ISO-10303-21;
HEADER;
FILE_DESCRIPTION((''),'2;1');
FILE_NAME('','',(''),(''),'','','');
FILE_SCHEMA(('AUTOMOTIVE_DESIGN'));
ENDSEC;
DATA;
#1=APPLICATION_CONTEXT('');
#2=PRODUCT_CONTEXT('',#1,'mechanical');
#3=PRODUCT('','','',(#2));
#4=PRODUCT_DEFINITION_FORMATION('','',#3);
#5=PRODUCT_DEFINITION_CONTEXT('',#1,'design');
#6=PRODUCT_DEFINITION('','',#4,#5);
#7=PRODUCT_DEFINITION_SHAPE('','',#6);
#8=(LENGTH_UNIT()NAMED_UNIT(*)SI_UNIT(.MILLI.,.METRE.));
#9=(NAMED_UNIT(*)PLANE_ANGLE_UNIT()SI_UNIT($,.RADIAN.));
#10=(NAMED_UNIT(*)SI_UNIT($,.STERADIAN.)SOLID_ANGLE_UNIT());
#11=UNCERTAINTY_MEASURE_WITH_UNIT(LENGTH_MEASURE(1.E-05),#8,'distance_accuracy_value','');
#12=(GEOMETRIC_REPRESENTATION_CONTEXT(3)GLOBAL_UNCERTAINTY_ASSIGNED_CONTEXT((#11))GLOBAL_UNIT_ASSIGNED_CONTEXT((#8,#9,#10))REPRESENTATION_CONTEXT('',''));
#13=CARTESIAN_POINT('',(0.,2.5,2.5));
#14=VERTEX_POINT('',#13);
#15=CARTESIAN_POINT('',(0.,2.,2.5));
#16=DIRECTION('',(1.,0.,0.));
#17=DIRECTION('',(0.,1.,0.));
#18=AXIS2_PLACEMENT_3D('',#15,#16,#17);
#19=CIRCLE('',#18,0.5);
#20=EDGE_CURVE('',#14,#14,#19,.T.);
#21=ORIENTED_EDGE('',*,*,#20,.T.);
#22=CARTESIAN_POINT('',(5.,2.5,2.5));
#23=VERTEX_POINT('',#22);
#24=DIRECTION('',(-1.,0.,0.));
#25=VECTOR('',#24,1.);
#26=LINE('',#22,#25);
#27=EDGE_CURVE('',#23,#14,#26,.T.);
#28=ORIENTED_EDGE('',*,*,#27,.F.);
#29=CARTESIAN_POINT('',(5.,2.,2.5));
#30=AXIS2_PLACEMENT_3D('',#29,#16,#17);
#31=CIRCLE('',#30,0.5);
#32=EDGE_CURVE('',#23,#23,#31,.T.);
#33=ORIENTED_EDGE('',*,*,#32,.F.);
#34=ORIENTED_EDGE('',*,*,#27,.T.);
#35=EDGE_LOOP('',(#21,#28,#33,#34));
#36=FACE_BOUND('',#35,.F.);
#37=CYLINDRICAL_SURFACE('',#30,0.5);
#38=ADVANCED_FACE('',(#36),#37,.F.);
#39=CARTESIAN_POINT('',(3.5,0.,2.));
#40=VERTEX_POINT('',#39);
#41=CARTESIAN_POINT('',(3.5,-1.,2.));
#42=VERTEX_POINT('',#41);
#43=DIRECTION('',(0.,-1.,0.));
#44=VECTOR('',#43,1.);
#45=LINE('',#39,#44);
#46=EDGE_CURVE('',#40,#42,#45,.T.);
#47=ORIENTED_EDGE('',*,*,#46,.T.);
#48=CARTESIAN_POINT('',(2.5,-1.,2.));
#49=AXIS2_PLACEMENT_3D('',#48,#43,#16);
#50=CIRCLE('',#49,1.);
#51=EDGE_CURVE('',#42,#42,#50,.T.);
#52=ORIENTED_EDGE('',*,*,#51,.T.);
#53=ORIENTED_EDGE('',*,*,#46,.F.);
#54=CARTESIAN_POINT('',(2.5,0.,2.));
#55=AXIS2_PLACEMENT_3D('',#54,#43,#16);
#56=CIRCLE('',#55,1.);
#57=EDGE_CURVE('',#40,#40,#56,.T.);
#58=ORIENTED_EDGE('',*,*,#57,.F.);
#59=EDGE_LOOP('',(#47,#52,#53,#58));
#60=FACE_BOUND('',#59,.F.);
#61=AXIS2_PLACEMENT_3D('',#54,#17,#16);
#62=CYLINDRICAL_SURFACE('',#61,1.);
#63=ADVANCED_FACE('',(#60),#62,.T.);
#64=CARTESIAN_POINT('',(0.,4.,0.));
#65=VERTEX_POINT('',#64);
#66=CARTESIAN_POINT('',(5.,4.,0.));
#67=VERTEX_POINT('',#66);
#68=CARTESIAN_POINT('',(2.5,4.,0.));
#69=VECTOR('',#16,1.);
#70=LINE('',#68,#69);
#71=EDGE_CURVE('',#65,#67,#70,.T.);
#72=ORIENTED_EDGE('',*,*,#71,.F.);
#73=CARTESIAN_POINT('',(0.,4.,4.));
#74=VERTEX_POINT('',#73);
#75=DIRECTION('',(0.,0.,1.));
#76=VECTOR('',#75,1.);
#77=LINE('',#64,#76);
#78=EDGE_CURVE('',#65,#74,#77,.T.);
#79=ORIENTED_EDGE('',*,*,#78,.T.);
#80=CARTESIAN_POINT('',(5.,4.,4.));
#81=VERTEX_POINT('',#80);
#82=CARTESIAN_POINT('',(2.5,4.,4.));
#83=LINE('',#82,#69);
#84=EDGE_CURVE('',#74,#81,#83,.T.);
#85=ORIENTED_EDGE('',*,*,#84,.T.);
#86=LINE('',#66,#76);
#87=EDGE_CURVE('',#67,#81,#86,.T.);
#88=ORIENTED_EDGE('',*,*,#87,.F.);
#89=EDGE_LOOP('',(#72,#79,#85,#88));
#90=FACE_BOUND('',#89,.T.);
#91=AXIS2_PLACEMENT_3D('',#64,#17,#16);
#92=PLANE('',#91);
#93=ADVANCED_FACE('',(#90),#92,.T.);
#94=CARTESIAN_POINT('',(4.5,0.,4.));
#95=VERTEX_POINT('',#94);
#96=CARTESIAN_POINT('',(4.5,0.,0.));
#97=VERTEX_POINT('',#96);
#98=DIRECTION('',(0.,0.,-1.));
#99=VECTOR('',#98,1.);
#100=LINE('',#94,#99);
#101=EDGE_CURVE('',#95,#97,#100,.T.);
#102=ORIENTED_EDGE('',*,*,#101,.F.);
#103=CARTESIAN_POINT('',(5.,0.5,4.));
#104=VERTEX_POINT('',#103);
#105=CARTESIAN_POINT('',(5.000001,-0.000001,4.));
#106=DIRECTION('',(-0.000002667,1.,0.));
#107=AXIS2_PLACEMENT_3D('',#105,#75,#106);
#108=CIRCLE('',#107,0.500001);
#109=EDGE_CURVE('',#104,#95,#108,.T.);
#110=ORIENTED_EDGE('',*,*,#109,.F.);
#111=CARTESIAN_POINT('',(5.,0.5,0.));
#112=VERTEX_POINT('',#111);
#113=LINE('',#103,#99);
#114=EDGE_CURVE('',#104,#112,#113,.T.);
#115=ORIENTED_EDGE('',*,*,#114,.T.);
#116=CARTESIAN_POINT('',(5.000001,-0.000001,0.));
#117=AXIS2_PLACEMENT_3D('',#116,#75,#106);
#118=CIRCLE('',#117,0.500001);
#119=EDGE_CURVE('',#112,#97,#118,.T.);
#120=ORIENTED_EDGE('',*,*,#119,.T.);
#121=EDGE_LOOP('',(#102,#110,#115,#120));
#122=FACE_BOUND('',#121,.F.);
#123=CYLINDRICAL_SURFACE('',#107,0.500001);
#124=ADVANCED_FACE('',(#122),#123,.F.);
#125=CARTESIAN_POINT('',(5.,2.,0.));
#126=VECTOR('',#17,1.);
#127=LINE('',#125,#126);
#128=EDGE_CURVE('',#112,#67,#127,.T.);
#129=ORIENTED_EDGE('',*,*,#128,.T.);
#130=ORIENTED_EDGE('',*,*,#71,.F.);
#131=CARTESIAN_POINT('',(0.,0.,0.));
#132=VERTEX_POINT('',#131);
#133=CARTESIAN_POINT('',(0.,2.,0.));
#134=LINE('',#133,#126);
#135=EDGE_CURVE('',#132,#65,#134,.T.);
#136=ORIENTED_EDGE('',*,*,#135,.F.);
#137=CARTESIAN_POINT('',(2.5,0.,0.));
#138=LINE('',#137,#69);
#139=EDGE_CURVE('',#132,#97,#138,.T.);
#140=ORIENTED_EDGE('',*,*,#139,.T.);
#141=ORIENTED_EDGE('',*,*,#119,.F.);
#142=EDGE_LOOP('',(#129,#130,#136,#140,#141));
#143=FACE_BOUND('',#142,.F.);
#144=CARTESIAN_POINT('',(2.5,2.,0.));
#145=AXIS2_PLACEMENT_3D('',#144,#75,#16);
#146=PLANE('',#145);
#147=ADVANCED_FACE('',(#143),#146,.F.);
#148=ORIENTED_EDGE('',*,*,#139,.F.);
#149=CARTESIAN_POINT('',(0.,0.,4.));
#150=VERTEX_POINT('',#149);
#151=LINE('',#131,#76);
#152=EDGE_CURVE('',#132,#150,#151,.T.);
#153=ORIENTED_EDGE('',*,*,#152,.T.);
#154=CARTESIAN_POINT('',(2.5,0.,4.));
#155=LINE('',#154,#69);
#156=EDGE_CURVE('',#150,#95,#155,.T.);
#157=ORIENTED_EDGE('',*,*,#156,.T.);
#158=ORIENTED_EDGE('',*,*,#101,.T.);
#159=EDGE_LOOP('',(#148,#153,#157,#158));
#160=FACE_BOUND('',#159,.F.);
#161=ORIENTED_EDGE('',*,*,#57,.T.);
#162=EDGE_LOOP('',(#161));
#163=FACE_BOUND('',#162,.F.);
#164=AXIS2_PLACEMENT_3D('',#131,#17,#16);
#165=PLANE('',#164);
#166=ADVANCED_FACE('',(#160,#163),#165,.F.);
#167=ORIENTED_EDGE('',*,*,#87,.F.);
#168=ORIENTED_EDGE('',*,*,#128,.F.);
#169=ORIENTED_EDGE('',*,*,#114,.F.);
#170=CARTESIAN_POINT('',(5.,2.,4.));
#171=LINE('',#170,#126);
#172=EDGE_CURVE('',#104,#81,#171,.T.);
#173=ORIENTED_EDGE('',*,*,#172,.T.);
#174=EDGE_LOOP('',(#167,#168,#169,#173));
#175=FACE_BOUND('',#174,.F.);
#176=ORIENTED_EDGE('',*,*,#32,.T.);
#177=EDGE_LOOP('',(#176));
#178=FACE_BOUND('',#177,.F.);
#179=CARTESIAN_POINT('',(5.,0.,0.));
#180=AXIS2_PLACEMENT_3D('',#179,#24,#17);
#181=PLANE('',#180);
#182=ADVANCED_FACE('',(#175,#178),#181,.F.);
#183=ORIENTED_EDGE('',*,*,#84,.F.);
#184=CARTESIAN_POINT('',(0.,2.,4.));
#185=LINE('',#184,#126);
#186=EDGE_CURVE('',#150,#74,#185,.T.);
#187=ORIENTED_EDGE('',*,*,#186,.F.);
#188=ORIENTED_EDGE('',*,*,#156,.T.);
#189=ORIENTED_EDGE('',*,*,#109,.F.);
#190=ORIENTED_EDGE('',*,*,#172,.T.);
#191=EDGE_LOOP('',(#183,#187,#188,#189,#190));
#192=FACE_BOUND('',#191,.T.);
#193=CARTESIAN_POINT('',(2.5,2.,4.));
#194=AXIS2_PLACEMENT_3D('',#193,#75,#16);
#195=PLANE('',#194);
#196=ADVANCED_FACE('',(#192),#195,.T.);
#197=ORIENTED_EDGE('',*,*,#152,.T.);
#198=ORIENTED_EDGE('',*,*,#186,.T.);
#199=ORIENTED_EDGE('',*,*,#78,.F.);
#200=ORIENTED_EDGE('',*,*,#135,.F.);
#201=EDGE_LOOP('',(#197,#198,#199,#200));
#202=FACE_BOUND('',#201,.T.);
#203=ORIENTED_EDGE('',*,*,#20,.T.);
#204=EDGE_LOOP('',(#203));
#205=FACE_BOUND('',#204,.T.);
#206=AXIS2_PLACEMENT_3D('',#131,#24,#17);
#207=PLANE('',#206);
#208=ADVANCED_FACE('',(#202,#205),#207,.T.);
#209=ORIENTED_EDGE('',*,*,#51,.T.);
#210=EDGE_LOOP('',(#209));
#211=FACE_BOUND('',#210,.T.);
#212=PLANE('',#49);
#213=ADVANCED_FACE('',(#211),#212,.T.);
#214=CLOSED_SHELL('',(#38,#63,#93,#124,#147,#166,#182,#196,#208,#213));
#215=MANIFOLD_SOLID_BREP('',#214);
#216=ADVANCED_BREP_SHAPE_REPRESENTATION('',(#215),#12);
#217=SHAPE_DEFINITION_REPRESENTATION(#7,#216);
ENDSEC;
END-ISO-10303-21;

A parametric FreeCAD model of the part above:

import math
import FreeCAD as App
import Part
import Sketcher
from FreeCAD import Vector
Q = App.Units.Quantity


def add_polygon(sketch, points):
    """Adds a closed chain of lines whose ends are joined by coincident constraints."""
    first, n = sketch.GeometryCount, len(points)
    for a, b in zip(points, points[1:] + points[:1]):
        sketch.addGeometry(Part.LineSegment(App.Vector(*a, 0), App.Vector(*b, 0)), False)
    for i in range(n):
        sketch.addConstraint(Sketcher.Constraint("Coincident", first + i, 2, first + (i + 1) % n, 1))

doc = App.newDocument("Part")
params = doc.addObject("Spreadsheet::Sheet", "Params")
for row, (alias, value) in enumerate([
    ("sketch1_width", "5 mm"),
    ("sketch1_height", "4 mm"),
    ("pad1_length", "4 mm"),
    ("sketch2_diameter", "2 mm"),
    ("pad2_length", "1 mm"),
    ("sketch3_radius", "0.500001 mm"),
    ("pocket1_length", "25 mm"),
    ("sketch4_diameter", "1 mm"),
    ("pocket2_length", "5 mm"),
], start=1):
    params.set(f"A{row}", alias)
    params.set(f"B{row}", "=" + value)
    params.setAlias(f"B{row}", alias)

body = doc.addObject("PartDesign::Body", "Body")

# Sketch on XY plane
sketch1 = body.newObject("Sketcher::SketchObject", "Sketch")
sketch1.AttachmentSupport = (doc.getObject("XY_Plane"), [""])
sketch1.MapMode = "FlatFace"
add_polygon(sketch1, [(0, 4), (0, 0), (5, 0), (5, 4)])  # lines 0-3
sketch1.addConstraint([
    Sketcher.Constraint("Vertical", 0),
    Sketcher.Constraint("Horizontal", 1),
    Sketcher.Constraint("Vertical", 2),
    Sketcher.Constraint("Horizontal", 3),
    Sketcher.Constraint("Coincident", 0, 2, -1, 1),
    Sketcher.Constraint("DistanceX", 1, 1, 1, 2, Q("5 mm")),
    Sketcher.Constraint("DistanceY", 0, 2, 0, 1, Q("4 mm")),
])
sketch1.setExpression("Constraints[9]", "Params.sketch1_width")
sketch1.setExpression("Constraints[10]", "Params.sketch1_height")
pad1 = body.newObject("PartDesign::Pad", "Pad")
pad1.Profile = sketch1
pad1.setExpression("Length", "Params.pad1_length")

# Sketch on XZ plane
sketch2 = body.newObject("Sketcher::SketchObject", "Sketch001")
sketch2.AttachmentSupport = (doc.getObject("XZ_Plane"), [""])
sketch2.MapMode = "FlatFace"
sketch2.addGeometry(Part.Circle(Vector(2.5, 2, 0), Vector(0, 0, 1), 1), False)
sketch2.addConstraint([
    Sketcher.Constraint("Diameter", 0, Q("2 mm")),
    Sketcher.Constraint("DistanceY", -1, 1, 0, 3, Q("2 mm")),
    Sketcher.Constraint("DistanceX", -1, 1, 0, 3, Q("2.5 mm")),
])
sketch2.setExpression("Constraints[0]", "Params.sketch2_diameter")
pad2 = body.newObject("PartDesign::Pad", "Pad001")
pad2.Profile = sketch2
pad2.setExpression("Length", "Params.pad2_length")

# Sketch on XY plane
sketch3 = body.newObject("Sketcher::SketchObject", "Sketch002")
sketch3.AttachmentSupport = (doc.getObject("XY_Plane"), [""])
sketch3.MapMode = "FlatFace"
sketch3.AttachmentOffset = App.Placement(Vector(0, 0, 4), App.Rotation())
sketch3.addGeometry([
    Part.ArcOfCircle(Part.Circle(Vector(5, 0, 0), Vector(0, 0, 1), 0.5), math.radians(90), math.radians(180)),
    Part.ArcOfCircle(Part.Circle(Vector(5, 0, 0), Vector(0, 0, 1), 0.5), math.radians(180), math.radians(360)),
    Part.ArcOfCircle(Part.Circle(Vector(5, 0, 0), Vector(0, 0, 1), 0.5), math.radians(0), math.radians(90)),
], False)
sketch3.addConstraint([
    Sketcher.Constraint("Coincident", 0, 2, 1, 1),
    Sketcher.Constraint("Coincident", 1, 2, 2, 1),
    Sketcher.Constraint("Coincident", 2, 2, 0, 1),
    Sketcher.Constraint("Coincident", 1, 3, 0, 3),
    Sketcher.Constraint("Equal", 1, 2),
    Sketcher.Constraint("PointOnObject", 0, 3, -1),
    Sketcher.Constraint("PointOnObject", 0, 2, -1),
    Sketcher.Constraint("PointOnObject", 1, 2, -1),
    Sketcher.Constraint("Vertical", 1, 3, 2, 2),
    Sketcher.Constraint("Radius", 0, Q("0.500001 mm")),
    Sketcher.Constraint("DistanceX", -1, 1, 0, 3, Q("5.000001 mm")),
])
sketch3.setExpression("Constraints[9]", "Params.sketch3_radius")
pocket1 = body.newObject("PartDesign::Pocket", "Pocket")
pocket1.Profile = sketch3
pocket1.setExpression("Length", "Params.pocket1_length")

# Sketch on YZ plane
sketch4 = body.newObject("Sketcher::SketchObject", "Sketch003")
sketch4.AttachmentSupport = (doc.getObject("YZ_Plane"), [""])
sketch4.MapMode = "FlatFace"
sketch4.AttachmentOffset = App.Placement(Vector(0, 0, 5), App.Rotation())
sketch4.addGeometry(Part.Circle(Vector(2, 2.5, 0), Vector(0, 0, 1), 0.5), False)
sketch4.addConstraint([
    Sketcher.Constraint("Diameter", 0, Q("1 mm")),
    Sketcher.Constraint("DistanceX", -1, 1, 0, 3, Q("2 mm")),
    Sketcher.Constraint("DistanceY", -1, 1, 0, 3, Q("2.5 mm")),
])
sketch4.setExpression("Constraints[0]", "Params.sketch4_diameter")
pocket2 = body.newObject("PartDesign::Pocket", "Pocket001")
pocket2.Profile = sketch4
pocket2.setExpression("Length", "Params.pocket2_length")

doc.recompute()
